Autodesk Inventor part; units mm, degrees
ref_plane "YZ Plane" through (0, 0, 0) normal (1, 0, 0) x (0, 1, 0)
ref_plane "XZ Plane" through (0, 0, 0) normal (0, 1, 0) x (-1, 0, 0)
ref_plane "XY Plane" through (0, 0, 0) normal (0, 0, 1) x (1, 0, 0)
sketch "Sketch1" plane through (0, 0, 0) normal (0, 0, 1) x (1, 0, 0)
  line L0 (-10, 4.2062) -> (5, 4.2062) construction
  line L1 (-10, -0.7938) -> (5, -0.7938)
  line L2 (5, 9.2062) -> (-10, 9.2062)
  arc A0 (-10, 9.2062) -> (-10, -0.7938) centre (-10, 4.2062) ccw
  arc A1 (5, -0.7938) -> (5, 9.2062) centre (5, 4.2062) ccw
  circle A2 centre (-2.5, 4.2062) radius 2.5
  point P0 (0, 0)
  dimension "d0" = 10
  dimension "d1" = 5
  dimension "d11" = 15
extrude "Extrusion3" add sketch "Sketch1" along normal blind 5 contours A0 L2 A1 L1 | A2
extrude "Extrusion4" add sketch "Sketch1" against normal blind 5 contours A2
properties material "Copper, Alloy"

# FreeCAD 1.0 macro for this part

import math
import FreeCAD as App
import Part
import Sketcher
Q = App.Units.Quantity

doc = App.newDocument("Part")
body = doc.addObject("PartDesign::Body", "Body")

# Sketch on XY plane
sketch1 = body.newObject("Sketcher::SketchObject", "Sketch")
sketch1.AttachmentSupport = (doc.getObject("XY_Plane"), [""])
sketch1.MapMode = "FlatFace"
sketch1.addGeometry([
    Part.ArcOfCircle(Part.Circle(App.Vector(-10, 4, 0), App.Vector(0, 0, 1), 5), math.radians(90), math.radians(270)),
    Part.LineSegment(App.Vector(-10, -1, 0), App.Vector(5, -1, 0)),
    Part.ArcOfCircle(Part.Circle(App.Vector(5, 4, 0), App.Vector(0, 0, 1), 5), math.radians(-90), math.radians(90)),
    Part.LineSegment(App.Vector(5, 9, 0), App.Vector(-10, 9, 0)),
], False)
sketch1.addConstraint([
    Sketcher.Constraint("Tangent", 0, 2, 1, 1),
    Sketcher.Constraint("Tangent", 1, 2, 2, 1),
    Sketcher.Constraint("Tangent", 2, 2, 3, 1),
    Sketcher.Constraint("Tangent", 3, 2, 0, 1),
    Sketcher.Constraint("Horizontal", 1),
    Sketcher.Constraint("Horizontal", 3),
    Sketcher.Constraint("Radius", 0, Q("5 mm")),
    Sketcher.Constraint("DistanceX", 1, 1, 1, 2, Q("15 mm")),
    Sketcher.Constraint("DistanceX", 0, 3, -1, 1, Q("10 mm")),
    Sketcher.Constraint("DistanceY", -1, 1, 0, 3, Q("4.2062 mm")),
])
pad1 = body.newObject("PartDesign::Pad", "Pad")
pad1.Profile = sketch1
pad1.Length = 5

# Sketch on XY plane
sketch2 = body.newObject("Sketcher::SketchObject", "Sketch001")
sketch2.AttachmentSupport = (doc.getObject("XY_Plane"), [""])
sketch2.MapMode = "FlatFace"
sketch2.addGeometry(Part.Circle(App.Vector(-2.5, 4.2, 0), App.Vector(0, 0, 1), 2.5), False)
sketch2.addConstraint([
    Sketcher.Constraint("Diameter", 0, Q("5 mm")),
    Sketcher.Constraint("DistanceX", 0, 3, -1, 1, Q("2.5 mm")),
    Sketcher.Constraint("DistanceY", -1, 1, 0, 3, Q("4.2062 mm")),
])
pad2 = body.newObject("PartDesign::Pad", "Pad001")
pad2.Profile = sketch2
pad2.Length = 5
pad2.Reversed = True

doc.recompute()
